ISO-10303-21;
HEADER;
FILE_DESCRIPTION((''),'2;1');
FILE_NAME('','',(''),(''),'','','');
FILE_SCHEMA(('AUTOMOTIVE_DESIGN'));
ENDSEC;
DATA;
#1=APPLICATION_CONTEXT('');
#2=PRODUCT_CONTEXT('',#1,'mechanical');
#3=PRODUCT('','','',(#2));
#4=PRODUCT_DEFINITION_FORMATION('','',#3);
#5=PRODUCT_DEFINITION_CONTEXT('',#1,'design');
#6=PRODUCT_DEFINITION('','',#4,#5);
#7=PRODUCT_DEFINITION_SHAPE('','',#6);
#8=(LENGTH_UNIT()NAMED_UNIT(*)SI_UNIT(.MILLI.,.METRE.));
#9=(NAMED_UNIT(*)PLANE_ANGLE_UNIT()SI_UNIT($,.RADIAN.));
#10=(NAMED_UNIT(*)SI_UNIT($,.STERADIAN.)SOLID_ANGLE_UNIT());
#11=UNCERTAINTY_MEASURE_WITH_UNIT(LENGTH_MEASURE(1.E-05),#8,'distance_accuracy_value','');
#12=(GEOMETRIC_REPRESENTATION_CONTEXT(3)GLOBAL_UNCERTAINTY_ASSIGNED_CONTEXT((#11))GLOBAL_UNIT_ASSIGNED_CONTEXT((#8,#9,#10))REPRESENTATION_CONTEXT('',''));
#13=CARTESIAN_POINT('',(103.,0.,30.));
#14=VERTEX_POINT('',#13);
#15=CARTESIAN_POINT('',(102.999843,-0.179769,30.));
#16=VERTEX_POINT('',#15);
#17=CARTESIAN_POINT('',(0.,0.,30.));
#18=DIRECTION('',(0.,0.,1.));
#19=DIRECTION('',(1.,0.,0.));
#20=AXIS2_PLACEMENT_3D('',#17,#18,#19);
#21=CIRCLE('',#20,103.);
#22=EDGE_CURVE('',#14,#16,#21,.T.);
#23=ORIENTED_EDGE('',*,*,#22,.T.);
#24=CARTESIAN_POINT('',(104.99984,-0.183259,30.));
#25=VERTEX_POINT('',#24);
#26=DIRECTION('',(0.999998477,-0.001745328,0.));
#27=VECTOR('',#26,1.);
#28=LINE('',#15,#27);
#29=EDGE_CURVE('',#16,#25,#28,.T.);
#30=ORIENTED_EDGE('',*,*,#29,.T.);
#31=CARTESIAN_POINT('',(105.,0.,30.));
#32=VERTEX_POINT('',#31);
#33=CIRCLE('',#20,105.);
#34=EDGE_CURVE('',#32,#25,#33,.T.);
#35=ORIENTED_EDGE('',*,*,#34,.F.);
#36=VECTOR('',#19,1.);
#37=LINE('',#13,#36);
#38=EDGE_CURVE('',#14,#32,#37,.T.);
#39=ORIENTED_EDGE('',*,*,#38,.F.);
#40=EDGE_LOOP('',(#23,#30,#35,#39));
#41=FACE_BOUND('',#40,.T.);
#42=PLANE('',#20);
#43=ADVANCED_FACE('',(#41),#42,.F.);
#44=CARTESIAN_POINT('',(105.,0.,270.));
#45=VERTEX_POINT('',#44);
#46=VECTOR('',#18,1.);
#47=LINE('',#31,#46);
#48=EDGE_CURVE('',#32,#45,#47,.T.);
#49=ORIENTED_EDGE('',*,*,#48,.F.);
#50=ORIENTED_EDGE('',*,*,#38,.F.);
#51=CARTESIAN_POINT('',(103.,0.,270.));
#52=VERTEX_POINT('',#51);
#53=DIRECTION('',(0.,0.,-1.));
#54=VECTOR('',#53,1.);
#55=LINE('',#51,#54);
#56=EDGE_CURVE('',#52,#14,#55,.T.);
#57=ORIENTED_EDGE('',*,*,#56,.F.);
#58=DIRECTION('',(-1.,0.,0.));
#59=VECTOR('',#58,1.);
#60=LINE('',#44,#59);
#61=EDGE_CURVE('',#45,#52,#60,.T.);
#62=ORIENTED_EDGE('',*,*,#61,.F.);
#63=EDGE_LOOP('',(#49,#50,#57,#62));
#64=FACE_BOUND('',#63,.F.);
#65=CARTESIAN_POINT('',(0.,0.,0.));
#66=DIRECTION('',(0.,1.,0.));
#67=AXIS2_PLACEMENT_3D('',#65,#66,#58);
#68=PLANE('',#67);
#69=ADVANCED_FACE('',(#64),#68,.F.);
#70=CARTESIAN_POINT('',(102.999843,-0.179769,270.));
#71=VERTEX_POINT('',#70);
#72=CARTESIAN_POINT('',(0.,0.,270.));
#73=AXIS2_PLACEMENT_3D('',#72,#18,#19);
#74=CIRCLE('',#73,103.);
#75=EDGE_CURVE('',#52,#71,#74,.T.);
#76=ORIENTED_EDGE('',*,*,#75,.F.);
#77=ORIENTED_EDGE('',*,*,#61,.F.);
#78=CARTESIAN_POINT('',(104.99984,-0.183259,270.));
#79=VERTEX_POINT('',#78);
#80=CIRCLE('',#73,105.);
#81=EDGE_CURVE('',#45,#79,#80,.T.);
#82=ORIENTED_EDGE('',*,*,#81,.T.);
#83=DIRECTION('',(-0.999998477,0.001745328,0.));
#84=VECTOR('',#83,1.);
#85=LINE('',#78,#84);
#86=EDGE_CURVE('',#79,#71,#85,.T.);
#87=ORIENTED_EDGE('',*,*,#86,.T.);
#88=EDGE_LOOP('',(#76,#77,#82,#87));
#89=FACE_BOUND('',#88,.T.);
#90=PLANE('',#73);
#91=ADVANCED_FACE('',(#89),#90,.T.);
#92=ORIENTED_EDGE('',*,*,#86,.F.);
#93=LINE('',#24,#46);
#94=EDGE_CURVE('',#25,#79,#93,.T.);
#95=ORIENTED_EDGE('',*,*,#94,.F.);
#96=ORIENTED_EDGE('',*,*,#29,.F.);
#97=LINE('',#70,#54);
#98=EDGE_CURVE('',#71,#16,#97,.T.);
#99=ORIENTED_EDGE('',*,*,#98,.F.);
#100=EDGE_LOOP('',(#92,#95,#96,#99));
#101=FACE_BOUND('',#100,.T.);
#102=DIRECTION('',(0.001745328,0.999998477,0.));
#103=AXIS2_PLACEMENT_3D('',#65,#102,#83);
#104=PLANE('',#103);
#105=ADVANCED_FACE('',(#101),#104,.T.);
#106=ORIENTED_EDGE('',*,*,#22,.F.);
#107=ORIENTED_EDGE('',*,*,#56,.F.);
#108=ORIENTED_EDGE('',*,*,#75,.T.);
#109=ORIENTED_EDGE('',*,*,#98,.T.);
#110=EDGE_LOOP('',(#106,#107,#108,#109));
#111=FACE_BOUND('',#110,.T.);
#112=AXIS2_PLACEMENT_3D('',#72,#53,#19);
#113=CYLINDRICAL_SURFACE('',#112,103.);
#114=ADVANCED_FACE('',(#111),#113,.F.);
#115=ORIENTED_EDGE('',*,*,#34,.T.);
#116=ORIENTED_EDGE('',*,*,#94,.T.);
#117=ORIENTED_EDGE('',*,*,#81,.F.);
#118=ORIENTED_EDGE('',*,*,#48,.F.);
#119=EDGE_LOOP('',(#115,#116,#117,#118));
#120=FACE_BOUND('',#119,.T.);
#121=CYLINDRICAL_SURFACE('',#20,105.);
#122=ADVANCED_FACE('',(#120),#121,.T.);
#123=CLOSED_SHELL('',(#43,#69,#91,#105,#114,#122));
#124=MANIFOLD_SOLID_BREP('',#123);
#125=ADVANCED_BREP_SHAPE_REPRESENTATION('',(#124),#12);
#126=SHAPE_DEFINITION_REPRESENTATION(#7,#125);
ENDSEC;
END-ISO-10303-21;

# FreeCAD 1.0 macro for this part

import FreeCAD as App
import Part
import Sketcher

V = App.Vector

doc = App.newDocument("Part")
params = doc.addObject("Spreadsheet::Sheet", "Params")
for row, (alias, value) in enumerate([
    ("sketch1_width", "2 mm"),
    ("sketch1_height", "240 mm"),
    ("revolution_angle", "359.9 deg"),
], start=1):
    params.set(f"A{row}", alias)
    params.set(f"B{row}", "=" + value)
    params.setAlias(f"B{row}", alias)

body = doc.addObject("PartDesign::Body", "Body")

# Sketch on XZ plane
sketch1 = body.newObject("Sketcher::SketchObject", "Sketch")
sketch1.AttachmentSupport = (doc.getObject("XZ_Plane"), [""])
sketch1.MapMode = "FlatFace"
sketch1.addGeometry(Part.LineSegment(V(105, 30, 0), V(103, 30, 0)), False)
sketch1.addGeometry(Part.LineSegment(V(103, 30, 0), V(103, 270, 0)), False)
sketch1.addGeometry(Part.LineSegment(V(103, 270, 0), V(105, 270, 0)), False)
sketch1.addGeometry(Part.LineSegment(V(105, 270, 0), V(105, 30, 0)), False)
sketch1.addConstraint(Sketcher.Constraint("Coincident", 0, 2, 1, 1))
sketch1.addConstraint(Sketcher.Constraint("Coincident", 1, 2, 2, 1))
sketch1.addConstraint(Sketcher.Constraint("Coincident", 2, 2, 3, 1))
sketch1.addConstraint(Sketcher.Constraint("Coincident", 3, 2, 0, 1))
sketch1.addConstraint(Sketcher.Constraint("Horizontal", 0))
sketch1.addConstraint(Sketcher.Constraint("Vertical", 1))
sketch1.addConstraint(Sketcher.Constraint("Horizontal", 2))
sketch1.addConstraint(Sketcher.Constraint("Vertical", 3))
sketch1.addConstraint(Sketcher.Constraint("DistanceX", 0, 2, 0, 1, 2.0))
sketch1.addConstraint(Sketcher.Constraint("DistanceY", 1, 1, 1, 2, 240.0))
sketch1.addConstraint(Sketcher.Constraint("DistanceX", -1, 1, 0, 2, 103.0))
sketch1.addConstraint(Sketcher.Constraint("DistanceY", -1, 1, 0, 2, 30.0))
sketch1.setExpression("Constraints[8]", "Params.sketch1_width")
sketch1.setExpression("Constraints[9]", "Params.sketch1_height")
revolution = body.newObject("PartDesign::Revolution", "Revolution")
revolution.Profile = sketch1
revolution.ReferenceAxis = (sketch1, ["V_Axis"])
revolution.setExpression("Angle", "Params.revolution_angle")

doc.recompute()
